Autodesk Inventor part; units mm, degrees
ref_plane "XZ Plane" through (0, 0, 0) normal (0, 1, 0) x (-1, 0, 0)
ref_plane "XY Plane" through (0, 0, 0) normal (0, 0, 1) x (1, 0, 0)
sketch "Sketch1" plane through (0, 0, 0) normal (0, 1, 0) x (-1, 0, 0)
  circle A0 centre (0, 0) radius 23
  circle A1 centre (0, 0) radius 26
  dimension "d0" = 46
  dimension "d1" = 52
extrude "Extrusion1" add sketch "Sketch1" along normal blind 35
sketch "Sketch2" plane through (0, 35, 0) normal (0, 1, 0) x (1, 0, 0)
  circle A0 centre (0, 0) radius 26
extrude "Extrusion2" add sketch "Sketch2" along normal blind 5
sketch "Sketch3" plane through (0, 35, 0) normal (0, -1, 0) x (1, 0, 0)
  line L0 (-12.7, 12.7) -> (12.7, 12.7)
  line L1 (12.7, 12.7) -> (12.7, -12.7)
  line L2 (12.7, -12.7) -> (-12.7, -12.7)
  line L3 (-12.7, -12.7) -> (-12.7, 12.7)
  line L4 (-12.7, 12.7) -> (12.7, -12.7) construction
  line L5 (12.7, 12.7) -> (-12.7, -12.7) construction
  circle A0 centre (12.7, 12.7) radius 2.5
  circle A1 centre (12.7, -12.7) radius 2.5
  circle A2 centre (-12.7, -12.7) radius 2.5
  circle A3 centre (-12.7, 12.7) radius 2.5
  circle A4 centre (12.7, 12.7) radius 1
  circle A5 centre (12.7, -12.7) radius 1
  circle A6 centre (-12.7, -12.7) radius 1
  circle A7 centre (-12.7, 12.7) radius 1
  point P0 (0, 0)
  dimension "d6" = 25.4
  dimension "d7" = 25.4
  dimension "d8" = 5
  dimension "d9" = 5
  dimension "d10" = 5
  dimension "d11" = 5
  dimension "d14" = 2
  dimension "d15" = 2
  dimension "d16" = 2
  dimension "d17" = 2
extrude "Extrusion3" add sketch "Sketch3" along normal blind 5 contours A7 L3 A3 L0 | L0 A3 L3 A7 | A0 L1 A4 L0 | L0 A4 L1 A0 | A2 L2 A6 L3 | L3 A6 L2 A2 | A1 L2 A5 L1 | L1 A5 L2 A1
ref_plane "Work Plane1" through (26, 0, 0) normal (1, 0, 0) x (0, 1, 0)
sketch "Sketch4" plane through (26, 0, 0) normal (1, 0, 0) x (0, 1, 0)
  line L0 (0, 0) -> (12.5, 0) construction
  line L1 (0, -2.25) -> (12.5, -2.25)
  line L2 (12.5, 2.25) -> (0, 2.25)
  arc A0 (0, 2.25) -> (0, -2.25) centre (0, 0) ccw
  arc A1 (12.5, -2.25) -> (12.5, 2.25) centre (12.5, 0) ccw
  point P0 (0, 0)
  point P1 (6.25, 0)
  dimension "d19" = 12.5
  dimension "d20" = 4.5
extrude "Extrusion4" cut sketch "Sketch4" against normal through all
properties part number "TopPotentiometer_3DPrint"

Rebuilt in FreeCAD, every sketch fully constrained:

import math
import FreeCAD as App
import Part
import Sketcher

doc = App.newDocument("Part")
body = doc.addObject("PartDesign::Body", "Body")

sketch1 = doc.addObject("Sketcher::SketchObject", "Sketch")
body.addObject(sketch1)
sketch1.AttachmentSupport = (doc.XZ_Plane, [""])
sketch1.MapMode = "FlatFace"
sketch1.addGeometry([
    Part.Circle(App.Vector(0, 0, 0), App.Vector(0, 0, 1), 26),
    Part.Circle(App.Vector(0, 0, 0), App.Vector(0, 0, 1), 23),
], False)
sketch1.addConstraint([
    Sketcher.Constraint("Coincident", 0, 3, -1, 1),
    Sketcher.Constraint("Coincident", 1, 3, -1, 1),
    Sketcher.Constraint("Diameter", 0, 52.0),
    Sketcher.Constraint("Diameter", 1, 46.0),
])
pad1 = doc.addObject("PartDesign::Pad", "Pad")
body.addObject(pad1)
pad1.Profile = sketch1
pad1.Length = 35
pad1.Reversed = True

sketch2 = doc.addObject("Sketcher::SketchObject", "Sketch001")
body.addObject(sketch2)
sketch2.AttachmentSupport = (doc.XZ_Plane, [""])
sketch2.MapMode = "FlatFace"
sketch2.AttachmentOffset = App.Placement(App.Vector(0, 0, -35), App.Rotation())
sketch2.addGeometry(Part.Circle(App.Vector(0, 0, 0), App.Vector(0, 0, 1), 26), False)
sketch2.addConstraint([
    Sketcher.Constraint("Coincident", 0, 3, -1, 1),
    Sketcher.Constraint("Diameter", 0, 52.0),
])
pad2 = doc.addObject("PartDesign::Pad", "Pad001")
body.addObject(pad2)
pad2.Profile = sketch2
pad2.Length = 5
pad2.Reversed = True

sketch3 = doc.addObject("Sketcher::SketchObject", "Sketch002")
body.addObject(sketch3)
sketch3.AttachmentSupport = (doc.XZ_Plane, [""])
sketch3.MapMode = "FlatFace"
sketch3.AttachmentOffset = App.Placement(App.Vector(0, 0, -35), App.Rotation())
sketch3.addGeometry([
    Part.Circle(App.Vector(-12.7, 12.7, 0), App.Vector(0, 0, 1), 2.5),
    Part.Circle(App.Vector(-12.7, 12.7, 0), App.Vector(0, 0, 1), 1),
    Part.Circle(App.Vector(12.7, 12.7, 0), App.Vector(0, 0, 1), 2.5),
    Part.Circle(App.Vector(12.7, 12.7, 0), App.Vector(0, 0, 1), 1),
    Part.Circle(App.Vector(-12.7, -12.7, 0), App.Vector(0, 0, 1), 2.5),
    Part.Circle(App.Vector(-12.7, -12.7, 0), App.Vector(0, 0, 1), 1),
    Part.Circle(App.Vector(12.7, -12.7, 0), App.Vector(0, 0, 1), 2.5),
    Part.Circle(App.Vector(12.7, -12.7, 0), App.Vector(0, 0, 1), 1),
], False)
sketch3.addConstraint([
    Sketcher.Constraint("Coincident", 1, 3, 0, 3),
    Sketcher.Constraint("Coincident", 3, 3, 2, 3),
    Sketcher.Constraint("Coincident", 5, 3, 4, 3),
    Sketcher.Constraint("Coincident", 7, 3, 6, 3),
    Sketcher.Constraint("Equal", 0, 2),
    Sketcher.Constraint("Equal", 1, 3),
    Sketcher.Constraint("Equal", 2, 4),
    Sketcher.Constraint("Equal", 3, 5),
    Sketcher.Constraint("Equal", 4, 6),
    Sketcher.Constraint("Equal", 5, 7),
    Sketcher.Constraint("Symmetric", 2, 3, 4, 3, -1, 1),
    Sketcher.Constraint("Symmetric", 0, 3, 6, 3, -1, 1),
    Sketcher.Constraint("Symmetric", 0, 3, 2, 3, -2),
    Sketcher.Constraint("Diameter", 0, 5.0),
    Sketcher.Constraint("Diameter", 1, 2.0),
    Sketcher.Constraint("DistanceX", 0, 3, 2, 3, 25.4),
    Sketcher.Constraint("DistanceY", 4, 3, 0, 3, 25.4),
])
pad3 = doc.addObject("PartDesign::Pad", "Pad002")
body.addObject(pad3)
pad3.Profile = sketch3
pad3.Length = 5

sketch4 = doc.addObject("Sketcher::SketchObject", "Sketch003")
body.addObject(sketch4)
sketch4.AttachmentSupport = (doc.YZ_Plane, [""])
sketch4.MapMode = "FlatFace"
sketch4.AttachmentOffset = App.Placement(App.Vector(0, 0, 26), App.Rotation())
sketch4.addGeometry([
    Part.ArcOfCircle(Part.Circle(App.Vector(0, 0, 0), App.Vector(0, 0, 1), 2.25), math.radians(90), math.radians(270)),
    Part.LineSegment(App.Vector(0, -2.25, 0), App.Vector(12.5, -2.25, 0)),
    Part.ArcOfCircle(Part.Circle(App.Vector(12.5, 0, 0), App.Vector(0, 0, 1), 2.25), math.radians(-90), math.radians(90)),
    Part.LineSegment(App.Vector(12.5, 2.25, 0), App.Vector(0, 2.25, 0)),
], False)
sketch4.addConstraint([
    Sketcher.Constraint("Tangent", 0, 2, 1, 1),
    Sketcher.Constraint("Tangent", 1, 2, 2, 1),
    Sketcher.Constraint("Tangent", 2, 2, 3, 1),
    Sketcher.Constraint("Tangent", 3, 2, 0, 1),
    Sketcher.Constraint("Horizontal", 1),
    Sketcher.Constraint("Horizontal", 3),
    Sketcher.Constraint("Coincident", 0, 3, -1, 1),
    Sketcher.Constraint("Radius", 0, 2.25),
    Sketcher.Constraint("DistanceX", 1, 1, 1, 2, 12.5),
])
pocket1 = doc.addObject("PartDesign::Pocket", "Pocket")
body.addObject(pocket1)
pocket1.Profile = sketch4
pocket1.Type = "ThroughAll"

doc.recompute()
